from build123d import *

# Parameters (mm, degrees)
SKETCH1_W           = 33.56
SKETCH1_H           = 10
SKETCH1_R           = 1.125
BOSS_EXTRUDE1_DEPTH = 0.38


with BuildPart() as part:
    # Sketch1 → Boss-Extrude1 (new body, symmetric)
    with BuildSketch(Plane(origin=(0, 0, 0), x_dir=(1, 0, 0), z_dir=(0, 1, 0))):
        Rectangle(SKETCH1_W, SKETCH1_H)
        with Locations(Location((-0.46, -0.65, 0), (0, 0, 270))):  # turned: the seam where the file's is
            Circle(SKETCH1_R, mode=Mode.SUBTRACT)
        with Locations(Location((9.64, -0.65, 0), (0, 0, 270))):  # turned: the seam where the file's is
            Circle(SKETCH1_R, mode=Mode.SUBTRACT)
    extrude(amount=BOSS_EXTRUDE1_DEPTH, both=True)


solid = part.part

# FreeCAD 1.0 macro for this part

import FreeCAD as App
import Part
import Sketcher
from FreeCAD import Vector


def add_polygon(sketch, points):
    """Adds a closed chain of lines whose ends are joined by coincident constraints."""
    first, n = sketch.GeometryCount, len(points)
    for a, b in zip(points, points[1:] + points[:1]):
        sketch.addGeometry(Part.LineSegment(App.Vector(*a, 0), App.Vector(*b, 0)), False)
    for i in range(n):
        sketch.addConstraint(Sketcher.Constraint("Coincident", first + i, 2, first + (i + 1) % n, 1))

doc = App.newDocument("Part")
body = doc.addObject("PartDesign::Body", "Body")

# Sketch on XZ plane
sketch1 = body.newObject("Sketcher::SketchObject", "Sketch")
sketch1.AttachmentSupport = (doc.getObject("XZ_Plane"), [""])
sketch1.MapMode = "FlatFace"
add_polygon(sketch1, [(-16.78, -5), (-16.78, 5), (16.78, 5), (16.78, -5)])  # lines 0-3
sketch1.addGeometry(Part.Circle(Vector(-0.46, 0.65, 0), Vector(0, 0, 1), 1.125), False)  # 4
sketch1.addGeometry(Part.Circle(Vector(9.64, 0.65, 0), Vector(0, 0, 1), 1.125), False)  # 5
sketch1.addConstraint([
    Sketcher.Constraint("Vertical", 0),
    Sketcher.Constraint("Horizontal", 1),
    Sketcher.Constraint("Vertical", 2),
    Sketcher.Constraint("Horizontal", 3),
    Sketcher.Constraint("Equal", 4, 5),
    Sketcher.Constraint("Symmetric", 0, 2, 2, 2, -1, 1),
    Sketcher.Constraint("Horizontal", 4, 3, 5, 3),
    Sketcher.Constraint("Diameter", 4, 2.25),
    Sketcher.Constraint("DistanceY", 0, 1, 0, 2, 10.0),
    Sketcher.Constraint("DistanceX", 1, 1, 1, 2, 33.56),
    Sketcher.Constraint("DistanceX", 4, 3, 5, 3, 10.1),
    Sketcher.Constraint("DistanceX", 4, 3, -1, 1, 0.46),
    Sketcher.Constraint("DistanceY", -1, 1, 4, 3, 0.65),
])
pad1 = body.newObject("PartDesign::Pad", "Pad")
pad1.Profile = sketch1
pad1.Length = 0.76
pad1.Midplane = True

doc.recompute()
